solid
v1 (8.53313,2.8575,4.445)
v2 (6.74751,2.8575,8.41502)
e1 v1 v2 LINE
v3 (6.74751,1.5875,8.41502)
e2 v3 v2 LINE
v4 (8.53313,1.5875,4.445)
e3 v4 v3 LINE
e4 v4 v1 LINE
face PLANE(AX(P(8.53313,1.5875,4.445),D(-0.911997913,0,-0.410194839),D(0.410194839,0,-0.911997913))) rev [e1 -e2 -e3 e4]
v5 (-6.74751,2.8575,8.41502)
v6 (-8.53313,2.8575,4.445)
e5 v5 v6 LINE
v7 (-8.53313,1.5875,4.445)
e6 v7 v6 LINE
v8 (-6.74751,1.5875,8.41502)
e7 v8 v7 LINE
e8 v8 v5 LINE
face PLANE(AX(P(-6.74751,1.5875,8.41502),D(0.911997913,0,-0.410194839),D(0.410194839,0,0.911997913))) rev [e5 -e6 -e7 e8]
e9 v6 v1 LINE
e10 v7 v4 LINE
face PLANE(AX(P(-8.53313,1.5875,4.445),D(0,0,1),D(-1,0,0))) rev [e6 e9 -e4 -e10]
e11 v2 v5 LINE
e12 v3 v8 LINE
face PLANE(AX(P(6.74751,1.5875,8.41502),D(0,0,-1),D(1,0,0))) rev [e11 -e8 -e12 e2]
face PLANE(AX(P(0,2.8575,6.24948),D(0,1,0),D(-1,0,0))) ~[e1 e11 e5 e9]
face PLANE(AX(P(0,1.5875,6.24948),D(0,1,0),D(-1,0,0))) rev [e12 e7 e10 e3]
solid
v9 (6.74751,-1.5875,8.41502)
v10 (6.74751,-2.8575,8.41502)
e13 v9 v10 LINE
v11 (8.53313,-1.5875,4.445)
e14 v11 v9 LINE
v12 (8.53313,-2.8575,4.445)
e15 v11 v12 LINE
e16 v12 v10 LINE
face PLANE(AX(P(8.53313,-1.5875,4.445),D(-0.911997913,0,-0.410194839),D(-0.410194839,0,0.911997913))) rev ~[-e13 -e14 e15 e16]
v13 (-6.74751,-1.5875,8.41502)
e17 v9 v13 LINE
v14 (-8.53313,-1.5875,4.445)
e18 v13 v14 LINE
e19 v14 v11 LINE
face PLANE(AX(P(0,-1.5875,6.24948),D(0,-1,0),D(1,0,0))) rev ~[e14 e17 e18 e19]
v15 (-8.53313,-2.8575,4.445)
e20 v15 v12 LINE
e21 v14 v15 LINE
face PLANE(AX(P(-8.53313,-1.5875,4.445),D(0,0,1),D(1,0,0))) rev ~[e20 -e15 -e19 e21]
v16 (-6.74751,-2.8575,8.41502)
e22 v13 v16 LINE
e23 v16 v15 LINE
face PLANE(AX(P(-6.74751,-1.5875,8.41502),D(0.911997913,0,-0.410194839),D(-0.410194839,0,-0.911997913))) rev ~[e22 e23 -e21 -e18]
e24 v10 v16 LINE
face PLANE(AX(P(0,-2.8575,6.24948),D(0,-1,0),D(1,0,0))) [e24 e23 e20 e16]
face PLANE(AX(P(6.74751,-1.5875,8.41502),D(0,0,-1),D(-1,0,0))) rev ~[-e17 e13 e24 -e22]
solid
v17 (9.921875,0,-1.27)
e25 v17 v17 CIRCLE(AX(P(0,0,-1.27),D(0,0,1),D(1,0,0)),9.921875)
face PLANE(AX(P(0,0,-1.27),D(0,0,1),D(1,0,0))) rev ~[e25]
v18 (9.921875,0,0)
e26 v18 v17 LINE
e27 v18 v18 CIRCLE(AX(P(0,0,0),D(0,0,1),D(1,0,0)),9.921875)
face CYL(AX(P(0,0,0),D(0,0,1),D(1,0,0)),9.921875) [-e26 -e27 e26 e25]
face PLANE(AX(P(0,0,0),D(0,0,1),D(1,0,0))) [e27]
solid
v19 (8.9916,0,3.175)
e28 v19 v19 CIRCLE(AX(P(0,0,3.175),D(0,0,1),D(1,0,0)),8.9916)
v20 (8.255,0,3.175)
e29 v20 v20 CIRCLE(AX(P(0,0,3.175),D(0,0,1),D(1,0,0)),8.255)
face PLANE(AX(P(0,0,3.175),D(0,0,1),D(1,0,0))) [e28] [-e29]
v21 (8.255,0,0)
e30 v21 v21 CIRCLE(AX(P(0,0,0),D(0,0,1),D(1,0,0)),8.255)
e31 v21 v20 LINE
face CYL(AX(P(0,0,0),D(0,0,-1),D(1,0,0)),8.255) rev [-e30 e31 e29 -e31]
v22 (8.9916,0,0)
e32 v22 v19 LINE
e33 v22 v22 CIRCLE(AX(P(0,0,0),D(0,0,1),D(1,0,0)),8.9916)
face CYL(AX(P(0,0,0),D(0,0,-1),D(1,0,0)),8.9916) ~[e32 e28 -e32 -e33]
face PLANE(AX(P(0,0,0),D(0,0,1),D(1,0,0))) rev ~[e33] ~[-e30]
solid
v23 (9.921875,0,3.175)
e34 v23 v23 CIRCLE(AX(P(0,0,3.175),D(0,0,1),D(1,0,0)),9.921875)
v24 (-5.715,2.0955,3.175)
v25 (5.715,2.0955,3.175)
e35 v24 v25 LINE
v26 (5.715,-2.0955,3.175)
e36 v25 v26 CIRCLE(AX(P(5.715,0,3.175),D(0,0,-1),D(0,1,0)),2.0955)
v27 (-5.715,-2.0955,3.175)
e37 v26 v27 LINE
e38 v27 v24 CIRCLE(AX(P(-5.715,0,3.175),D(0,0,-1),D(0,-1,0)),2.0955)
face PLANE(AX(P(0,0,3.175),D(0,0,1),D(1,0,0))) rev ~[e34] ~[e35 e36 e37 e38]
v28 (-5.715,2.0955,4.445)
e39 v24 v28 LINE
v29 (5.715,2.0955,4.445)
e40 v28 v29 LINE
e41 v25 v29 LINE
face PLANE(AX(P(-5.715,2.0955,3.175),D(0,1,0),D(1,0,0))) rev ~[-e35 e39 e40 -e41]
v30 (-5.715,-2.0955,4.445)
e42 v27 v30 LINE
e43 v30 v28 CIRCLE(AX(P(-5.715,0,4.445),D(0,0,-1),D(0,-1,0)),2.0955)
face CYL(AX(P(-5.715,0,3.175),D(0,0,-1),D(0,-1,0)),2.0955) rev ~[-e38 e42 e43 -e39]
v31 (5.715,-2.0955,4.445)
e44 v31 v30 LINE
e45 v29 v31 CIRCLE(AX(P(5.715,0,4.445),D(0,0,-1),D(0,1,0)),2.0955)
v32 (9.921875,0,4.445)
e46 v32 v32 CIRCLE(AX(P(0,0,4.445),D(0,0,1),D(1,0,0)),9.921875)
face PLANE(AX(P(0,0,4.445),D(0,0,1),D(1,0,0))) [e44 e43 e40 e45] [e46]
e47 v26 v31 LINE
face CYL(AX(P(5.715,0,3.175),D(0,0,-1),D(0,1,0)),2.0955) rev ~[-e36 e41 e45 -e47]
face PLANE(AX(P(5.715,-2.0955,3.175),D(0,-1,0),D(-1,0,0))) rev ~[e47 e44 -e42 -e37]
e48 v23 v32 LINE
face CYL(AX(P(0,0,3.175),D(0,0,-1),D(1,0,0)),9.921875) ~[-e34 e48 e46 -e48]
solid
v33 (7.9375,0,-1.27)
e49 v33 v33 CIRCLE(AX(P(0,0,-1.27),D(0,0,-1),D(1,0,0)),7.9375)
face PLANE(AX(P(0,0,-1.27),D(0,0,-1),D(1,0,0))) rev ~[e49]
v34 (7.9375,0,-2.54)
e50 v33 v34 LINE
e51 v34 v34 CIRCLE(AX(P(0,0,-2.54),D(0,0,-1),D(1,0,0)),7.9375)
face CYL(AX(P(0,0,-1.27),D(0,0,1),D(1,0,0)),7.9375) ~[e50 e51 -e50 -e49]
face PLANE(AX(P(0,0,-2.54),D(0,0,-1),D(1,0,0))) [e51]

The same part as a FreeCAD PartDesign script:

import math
import FreeCAD as App
import Part
import Sketcher
Q = App.Units.Quantity


def add_polygon(sketch, points):
    """Adds a closed chain of lines whose ends are joined by coincident constraints."""
    first, n = sketch.GeometryCount, len(points)
    for a, b in zip(points, points[1:] + points[:1]):
        sketch.addGeometry(Part.LineSegment(App.Vector(*a, 0), App.Vector(*b, 0)), False)
    for i in range(n):
        sketch.addConstraint(Sketcher.Constraint("Coincident", first + i, 2, first + (i + 1) % n, 1))

doc = App.newDocument("Part")
params = doc.addObject("Spreadsheet::Sheet", "Params")
for row, (alias, value) in enumerate([
    ("sketch1_diameter", "0.78125 in"),
    ("pad1_length", "0.05 in"),
    ("sketch2_diameter", "0.625 in"),
    ("pad2_length", "0.05 in"),
    ("sketch3_diameter", "0.65 in"),
    ("sketch3_diameter2", "0.708 in"),
    ("pad3_length", "0.125 in"),
    ("sketch4_diameter", "0.78125 in"),
    ("sketch4_width", "0.45 in"),
    ("pad4_length", "0.05 in"),
    ("pad5_length", "0.05 in"),
], start=1):
    params.set(f"A{row}", alias)
    params.set(f"B{row}", "=" + value)
    params.setAlias(f"B{row}", alias)

body = doc.addObject("PartDesign::Body", "Body")

# Sketch on XY plane
sketch1 = doc.addObject("Sketcher::SketchObject", "Sketch")
body.addObject(sketch1)
sketch1.AttachmentSupport = (doc.XY_Plane, [""])
sketch1.MapMode = "FlatFace"
sketch1.addGeometry(Part.Circle(App.Vector(0, 0, 0), App.Vector(0, 0, 1), 9.921875), False)
sketch1.addConstraint(Sketcher.Constraint("Coincident", 0, 3, -1, 1))
sketch1.addConstraint(Sketcher.Constraint("Diameter", 0, Q("0.78125 in")))
sketch1.setExpression("Constraints[1]", "Params.sketch1_diameter")
pad1 = doc.addObject("PartDesign::Pad", "Pad")
body.addObject(pad1)
pad1.Profile = sketch1
pad1.setExpression("Length", "Params.pad1_length")
pad1.Reversed = True
body2 = doc.addObject("PartDesign::Body", "Body001")

# Sketch on XY plane
sketch2 = doc.addObject("Sketcher::SketchObject", "Sketch001")
body2.addObject(sketch2)
sketch2.AttachmentSupport = (doc.getObject("XY_Plane001"), [""])
sketch2.MapMode = "FlatFace"
sketch2.AttachmentOffset = App.Placement(App.Vector(0, 0, -0.05 * 25.4), App.Rotation())
sketch2.addGeometry(Part.Circle(App.Vector(0, 0, 0), App.Vector(0, 0, 1), 7.9375), False)
sketch2.addConstraint(Sketcher.Constraint("Coincident", 0, 3, -1, 1))
sketch2.addConstraint(Sketcher.Constraint("Diameter", 0, Q("0.625 in")))
sketch2.setExpression("Constraints[1]", "Params.sketch2_diameter")
pad2 = doc.addObject("PartDesign::Pad", "Pad001")
body2.addObject(pad2)
pad2.Profile = sketch2
pad2.setExpression("Length", "Params.pad2_length")
pad2.Reversed = True
body3 = doc.addObject("PartDesign::Body", "Body002")

# Sketch on XY plane
sketch3 = doc.addObject("Sketcher::SketchObject", "Sketch002")
body3.addObject(sketch3)
sketch3.AttachmentSupport = (doc.getObject("XY_Plane002"), [""])
sketch3.MapMode = "FlatFace"
sketch3.addGeometry(Part.Circle(App.Vector(0, 0, 0), App.Vector(0, 0, 1), 8.9916), False)
sketch3.addGeometry(Part.Circle(App.Vector(0, 0, 0), App.Vector(0, 0, 1), 8.255), False)
sketch3.addConstraint(Sketcher.Constraint("Coincident", 0, 3, -1, 1))
sketch3.addConstraint(Sketcher.Constraint("Coincident", 1, 3, -1, 1))
sketch3.addConstraint(Sketcher.Constraint("Diameter", 1, Q("0.65 in")))
sketch3.addConstraint(Sketcher.Constraint("Diameter", 0, Q("0.708 in")))
sketch3.setExpression("Constraints[2]", "Params.sketch3_diameter")
sketch3.setExpression("Constraints[3]", "Params.sketch3_diameter2")
pad3 = doc.addObject("PartDesign::Pad", "Pad002")
body3.addObject(pad3)
pad3.Profile = sketch3
pad3.setExpression("Length", "Params.pad3_length")
body4 = doc.addObject("PartDesign::Body", "Body003")

# Sketch on XY plane
sketch4 = doc.addObject("Sketcher::SketchObject", "Sketch003")
body4.addObject(sketch4)
sketch4.AttachmentSupport = (doc.getObject("XY_Plane003"), [""])
sketch4.MapMode = "FlatFace"
sketch4.AttachmentOffset = App.Placement(App.Vector(0, 0, 0.125 * 25.4), App.Rotation())
sketch4.addGeometry(Part.Circle(App.Vector(0, 0, 0), App.Vector(0, 0, 1), 9.921875), False)
sketch4.addGeometry(Part.LineSegment(App.Vector(5.715, -2.0955, 0), App.Vector(-5.715, -2.0955, 0)), False)
sketch4.addGeometry(Part.ArcOfCircle(Part.Circle(App.Vector(-5.715, 0, 0), App.Vector(0, 0, 1), 2.0955), math.radians(90), math.radians(270)), False)
sketch4.addGeometry(Part.LineSegment(App.Vector(-5.715, 2.0955, 0), App.Vector(5.715, 2.0955, 0)), False)
sketch4.addGeometry(Part.ArcOfCircle(Part.Circle(App.Vector(5.715, 0, 0), App.Vector(0, 0, 1), 2.0955), math.radians(-90), math.radians(90)), False)
sketch4.addConstraint(Sketcher.Constraint("Tangent", 1, 2, 2, 2))
sketch4.addConstraint(Sketcher.Constraint("Tangent", 2, 1, 3, 1))
sketch4.addConstraint(Sketcher.Constraint("Tangent", 3, 2, 4, 2))
sketch4.addConstraint(Sketcher.Constraint("Tangent", 4, 1, 1, 1))
sketch4.addConstraint(Sketcher.Constraint("Horizontal", 1))
sketch4.addConstraint(Sketcher.Constraint("Horizontal", 3))
sketch4.addConstraint(Sketcher.Constraint("Coincident", 0, 3, -1, 1))
sketch4.addConstraint(Sketcher.Constraint("Symmetric", 2, 3, 4, 3, -1, 1))
sketch4.addConstraint(Sketcher.Constraint("Diameter", 0, Q("0.78125 in")))
sketch4.addConstraint(Sketcher.Constraint("DistanceX", 1, 2, 1, 1, Q("0.45 in")))
sketch4.addConstraint(Sketcher.Constraint("Radius", 2, Q("0.0825 in")))
sketch4.setExpression("Constraints[8]", "Params.sketch4_diameter")
sketch4.setExpression("Constraints[9]", "Params.sketch4_width")
pad4 = doc.addObject("PartDesign::Pad", "Pad003")
body4.addObject(pad4)
pad4.Profile = sketch4
pad4.setExpression("Length", "Params.pad4_length")
body5 = doc.addObject("PartDesign::Body", "Body004")

# Sketch on XZ plane
sketch5 = doc.addObject("Sketcher::SketchObject", "Sketch004")
body5.addObject(sketch5)
sketch5.AttachmentSupport = (doc.getObject("XZ_Plane004"), [""])
sketch5.MapMode = "FlatFace"
sketch5.AttachmentOffset = App.Placement(App.Vector(0, 0, 0.0625 * 25.4), App.Rotation())
add_polygon(sketch5, [(6.74751, 8.41502), (-6.74751, 8.41502), (-8.53313, 4.445), (8.53313, 4.445)])  # lines 0-3
sketch5.addConstraint(Sketcher.Constraint("Horizontal", 0))
sketch5.addConstraint(Sketcher.Constraint("Horizontal", 2))
sketch5.addConstraint(Sketcher.Constraint("Equal", 1, 3))
sketch5.addConstraint(Sketcher.Constraint("DistanceX", 0, 2, 0, 1, Q("0.5313 in")))
sketch5.addConstraint(Sketcher.Constraint("DistanceX", 2, 1, 2, 2, Q("0.6719 in")))
sketch5.addConstraint(Sketcher.Constraint("DistanceY", -1, 1, 1, 2, Q("0.175 in")))
sketch5.addConstraint(Sketcher.Constraint("DistanceY", -1, 1, 0, 2, Q("0.3313 in")))
sketch5.addConstraint(Sketcher.Constraint("DistanceX", 0, 2, -1, 1, Q("6.74751 mm")))
pad5 = doc.addObject("PartDesign::Pad", "Pad004")
body5.addObject(pad5)
pad5.Profile = sketch5
pad5.setExpression("Length", "Params.pad5_length")
body6 = doc.addObject("PartDesign::Body", "Body005")
doc.recompute()

mirroring = doc.addObject("Part::Mirroring", "Mirroring")
mirroring.Source = body5
mirroring.Base = App.Vector(0, 0, 0)
mirroring.Normal = App.Vector(0, -1, 0)
body6.BaseFeature = mirroring
doc.recompute()
mirroring.Visibility = False

doc.recompute()
